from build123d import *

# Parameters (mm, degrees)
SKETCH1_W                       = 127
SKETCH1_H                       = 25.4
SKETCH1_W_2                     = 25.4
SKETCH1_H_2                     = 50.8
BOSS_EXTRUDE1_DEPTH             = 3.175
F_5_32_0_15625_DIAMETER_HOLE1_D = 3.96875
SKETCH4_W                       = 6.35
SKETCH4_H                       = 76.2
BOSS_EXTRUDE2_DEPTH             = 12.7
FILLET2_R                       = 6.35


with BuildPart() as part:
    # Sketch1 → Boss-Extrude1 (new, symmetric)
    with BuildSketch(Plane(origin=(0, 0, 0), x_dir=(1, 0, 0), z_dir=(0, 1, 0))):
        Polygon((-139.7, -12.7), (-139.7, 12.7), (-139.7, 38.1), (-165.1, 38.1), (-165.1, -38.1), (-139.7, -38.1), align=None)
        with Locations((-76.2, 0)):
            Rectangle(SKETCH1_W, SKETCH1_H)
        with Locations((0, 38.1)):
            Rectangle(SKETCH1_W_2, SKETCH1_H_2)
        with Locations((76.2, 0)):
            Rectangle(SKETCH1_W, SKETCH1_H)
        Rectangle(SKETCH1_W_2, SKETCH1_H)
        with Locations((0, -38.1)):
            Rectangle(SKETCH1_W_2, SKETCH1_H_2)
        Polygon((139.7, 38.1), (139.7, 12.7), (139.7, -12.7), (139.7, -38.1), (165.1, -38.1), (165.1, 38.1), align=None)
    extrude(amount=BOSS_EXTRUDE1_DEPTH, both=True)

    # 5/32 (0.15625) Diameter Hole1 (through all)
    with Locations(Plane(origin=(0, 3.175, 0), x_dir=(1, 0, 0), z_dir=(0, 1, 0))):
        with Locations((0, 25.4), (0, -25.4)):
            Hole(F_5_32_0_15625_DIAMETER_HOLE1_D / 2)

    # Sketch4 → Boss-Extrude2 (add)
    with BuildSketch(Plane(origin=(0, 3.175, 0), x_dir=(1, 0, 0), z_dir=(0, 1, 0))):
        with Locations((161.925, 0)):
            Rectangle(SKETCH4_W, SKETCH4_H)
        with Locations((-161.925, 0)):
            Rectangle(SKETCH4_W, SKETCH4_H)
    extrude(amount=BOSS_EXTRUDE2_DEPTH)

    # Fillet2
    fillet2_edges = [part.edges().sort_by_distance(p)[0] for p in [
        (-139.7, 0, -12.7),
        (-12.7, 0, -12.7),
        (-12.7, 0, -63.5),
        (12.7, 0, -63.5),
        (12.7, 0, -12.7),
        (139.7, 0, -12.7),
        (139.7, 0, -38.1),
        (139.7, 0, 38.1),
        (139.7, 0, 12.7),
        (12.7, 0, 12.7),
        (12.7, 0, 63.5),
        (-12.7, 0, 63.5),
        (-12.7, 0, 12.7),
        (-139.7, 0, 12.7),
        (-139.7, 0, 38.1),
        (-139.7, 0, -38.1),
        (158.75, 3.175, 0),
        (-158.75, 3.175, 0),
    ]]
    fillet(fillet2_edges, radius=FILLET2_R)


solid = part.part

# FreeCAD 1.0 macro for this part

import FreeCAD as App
import Part
import Sketcher
from FreeCAD import Vector
Q = App.Units.Quantity


def edges_at(feature, points):
    """Names of the edges that pass closest to the given points."""
    edges = feature.Shape.Edges
    near = lambda p: min(range(len(edges)), key=lambda i: edges[i].distToShape(Part.Vertex(*p))[0])
    return sorted({f"Edge{near(p) + 1}" for p in points})


def add_polygon(sketch, points):
    """Adds a closed chain of lines whose ends are joined by coincident constraints."""
    first, n = sketch.GeometryCount, len(points)
    for a, b in zip(points, points[1:] + points[:1]):
        sketch.addGeometry(Part.LineSegment(App.Vector(*a, 0), App.Vector(*b, 0)), False)
    for i in range(n):
        sketch.addConstraint(Sketcher.Constraint("Coincident", first + i, 2, first + (i + 1) % n, 1))

doc = App.newDocument("Part")
body = doc.addObject("PartDesign::Body", "Body")

sketch1 = body.newObject("Sketcher::SketchObject", "Sketch")
sketch1.AttachmentSupport = (doc.getObject("XZ_Plane"), [""])
sketch1.MapMode = "FlatFace"
add_polygon(sketch1, [(-140, -38), (-165, -38), (-165, 38), (-140, 38), (-140, 13), (-13, 13), (-13, 64), (13, 64), (13, 13), (140, 13), (140, 38), (165, 38), (165, -38), (140, -38), (140, -13), (13, -13), (13, -64), (-13, -64), (-13, -13), (-140, -13)])
sketch1.addConstraint(Sketcher.Constraint("Horizontal", 0))
sketch1.addConstraint(Sketcher.Constraint("Vertical", 1))
sketch1.addConstraint(Sketcher.Constraint("Horizontal", 2))
sketch1.addConstraint(Sketcher.Constraint("Vertical", 3))
sketch1.addConstraint(Sketcher.Constraint("Horizontal", 4))
sketch1.addConstraint(Sketcher.Constraint("Vertical", 5))
sketch1.addConstraint(Sketcher.Constraint("Horizontal", 6))
sketch1.addConstraint(Sketcher.Constraint("Vertical", 7))
sketch1.addConstraint(Sketcher.Constraint("Horizontal", 8))
sketch1.addConstraint(Sketcher.Constraint("Vertical", 9))
sketch1.addConstraint(Sketcher.Constraint("Horizontal", 10))
sketch1.addConstraint(Sketcher.Constraint("Vertical", 11))
sketch1.addConstraint(Sketcher.Constraint("Horizontal", 12))
sketch1.addConstraint(Sketcher.Constraint("Vertical", 13))
sketch1.addConstraint(Sketcher.Constraint("Horizontal", 14))
sketch1.addConstraint(Sketcher.Constraint("Vertical", 15))
sketch1.addConstraint(Sketcher.Constraint("Horizontal", 16))
sketch1.addConstraint(Sketcher.Constraint("Vertical", 17))
sketch1.addConstraint(Sketcher.Constraint("Horizontal", 18))
sketch1.addConstraint(Sketcher.Constraint("Vertical", 19))
sketch1.addConstraint(Sketcher.Constraint("Symmetric", 0, 2, 10, 2, -1, 1))
sketch1.addConstraint(Sketcher.Constraint("Symmetric", 2, 2, 12, 2, -1, 1))
sketch1.addConstraint(Sketcher.Constraint("Symmetric", 4, 2, 14, 2, -1, 1))
sketch1.addConstraint(Sketcher.Constraint("Symmetric", 6, 2, 16, 2, -1, 1))
sketch1.addConstraint(Sketcher.Constraint("Symmetric", 8, 2, 18, 2, -1, 1))
sketch1.addConstraint(Sketcher.Constraint("Symmetric", 4, 2, 7, 2, -2))
sketch1.addConstraint(Sketcher.Constraint("Symmetric", 2, 2, 9, 2, -2))
sketch1.addConstraint(Sketcher.Constraint("Equal", 2, 6))
sketch1.addConstraint(Sketcher.Constraint("Equal", 16, 3))
sketch1.addConstraint(Sketcher.Constraint("DistanceX", 0, 2, 0, 1, Q("1 in")))
sketch1.addConstraint(Sketcher.Constraint("DistanceX", 4, 1, 4, 2, Q("5 in")))
sketch1.addConstraint(Sketcher.Constraint("DistanceY", 1, 1, 1, 2, Q("3 in")))
sketch1.addConstraint(Sketcher.Constraint("DistanceY", 5, 1, 5, 2, Q("2 in")))
pad1 = body.newObject("PartDesign::Pad", "Pad")
pad1.Profile = sketch1
pad1.Length = Q("0.25 in")
pad1.Midplane = True

sketch2 = body.newObject("Sketcher::SketchObject", "Sketch001")
sketch2.AttachmentSupport = (doc.getObject("XZ_Plane"), [""])
sketch2.MapMode = "FlatFace"
sketch2.AttachmentOffset = App.Placement(Vector(0, 0, -0.125 * 25.4), App.Rotation())
sketch2.addGeometry(Part.Circle(Vector(0, -25.4, 0), Vector(0, 0, 1), 2), False)
sketch2.addGeometry(Part.Circle(Vector(0, 25.4, 0), Vector(0, 0, 1), 2), False)
sketch2.addConstraint(Sketcher.Constraint("Equal", 0, 1))
sketch2.addConstraint(Sketcher.Constraint("Symmetric", 0, 3, 1, 3, -1, 1))
sketch2.addConstraint(Sketcher.Constraint("PointOnObject", 0, 3, -2))
sketch2.addConstraint(Sketcher.Constraint("Diameter", 0, Q("0.15625 in")))
sketch2.addConstraint(Sketcher.Constraint("DistanceY", 0, 3, -1, 1, Q("1 in")))
doc.recompute()
hole = body.newObject("PartDesign::Hole", "Hole")
hole.Profile = sketch2
hole.ThreadType = "None"
hole.Diameter = Q("0.15625 in")
hole.DepthType = "ThroughAll"
hole.Reversed = True

sketch3 = body.newObject("Sketcher::SketchObject", "Sketch002")
sketch3.AttachmentSupport = (doc.getObject("XZ_Plane"), [""])
sketch3.MapMode = "FlatFace"
sketch3.AttachmentOffset = App.Placement(Vector(0, 0, -0.125 * 25.4), App.Rotation())
add_polygon(sketch3, [(159, -38), (159, 38), (165, 38), (165, -38)])
add_polygon(sketch3, [(-165, -38), (-165, 38), (-159, 38), (-159, -38)])
sketch3.addConstraint(Sketcher.Constraint("Vertical", 0))
sketch3.addConstraint(Sketcher.Constraint("Horizontal", 1))
sketch3.addConstraint(Sketcher.Constraint("Vertical", 2))
sketch3.addConstraint(Sketcher.Constraint("Horizontal", 3))
sketch3.addConstraint(Sketcher.Constraint("Vertical", 4))
sketch3.addConstraint(Sketcher.Constraint("Horizontal", 5))
sketch3.addConstraint(Sketcher.Constraint("Vertical", 6))
sketch3.addConstraint(Sketcher.Constraint("Horizontal", 7))
sketch3.addConstraint(Sketcher.Constraint("Symmetric", 2, 2, 4, 2, -1, 1))
sketch3.addConstraint(Sketcher.Constraint("Symmetric", 0, 2, 6, 2, -1, 1))
sketch3.addConstraint(Sketcher.Constraint("Horizontal", 1, 2, 4, 2))
sketch3.addConstraint(Sketcher.Constraint("DistanceY", 0, 1, 0, 2, Q("3 in")))
sketch3.addConstraint(Sketcher.Constraint("DistanceX", 4, 2, 1, 2, Q("13 in")))
sketch3.addConstraint(Sketcher.Constraint("DistanceX", 1, 1, 1, 2, Q("0.25 in")))
pad2 = body.newObject("PartDesign::Pad", "Pad001")
pad2.Profile = sketch3
pad2.Length = Q("0.5 in")
pad2.Reversed = True
doc.recompute()

fillet = body.newObject("PartDesign::Fillet", "Fillet")
fillet.Base = (pad2, edges_at(pad2, [
    (-139.7, 0, -12.7),
    (-12.7, 0, -12.7),
    (-12.7, 0, -63.5),
    (12.7, 0, -63.5),
    (12.7, 0, -12.7),
    (139.7, 0, -12.7),
    (139.7, 0, -38.1),
    (139.7, 0, 38.1),
    (139.7, 0, 12.7),
    (12.7, 0, 12.7),
    (12.7, 0, 63.5),
    (-12.7, 0, 63.5),
    (-12.7, 0, 12.7),
    (-139.7, 0, 12.7),
    (-139.7, 0, 38.1),
    (-139.7, 0, -38.1),
    (158.75, 3.175, 0),
    (-158.75, 3.175, 0),
]))
fillet.Radius = Q("0.25 in")

doc.recompute()
